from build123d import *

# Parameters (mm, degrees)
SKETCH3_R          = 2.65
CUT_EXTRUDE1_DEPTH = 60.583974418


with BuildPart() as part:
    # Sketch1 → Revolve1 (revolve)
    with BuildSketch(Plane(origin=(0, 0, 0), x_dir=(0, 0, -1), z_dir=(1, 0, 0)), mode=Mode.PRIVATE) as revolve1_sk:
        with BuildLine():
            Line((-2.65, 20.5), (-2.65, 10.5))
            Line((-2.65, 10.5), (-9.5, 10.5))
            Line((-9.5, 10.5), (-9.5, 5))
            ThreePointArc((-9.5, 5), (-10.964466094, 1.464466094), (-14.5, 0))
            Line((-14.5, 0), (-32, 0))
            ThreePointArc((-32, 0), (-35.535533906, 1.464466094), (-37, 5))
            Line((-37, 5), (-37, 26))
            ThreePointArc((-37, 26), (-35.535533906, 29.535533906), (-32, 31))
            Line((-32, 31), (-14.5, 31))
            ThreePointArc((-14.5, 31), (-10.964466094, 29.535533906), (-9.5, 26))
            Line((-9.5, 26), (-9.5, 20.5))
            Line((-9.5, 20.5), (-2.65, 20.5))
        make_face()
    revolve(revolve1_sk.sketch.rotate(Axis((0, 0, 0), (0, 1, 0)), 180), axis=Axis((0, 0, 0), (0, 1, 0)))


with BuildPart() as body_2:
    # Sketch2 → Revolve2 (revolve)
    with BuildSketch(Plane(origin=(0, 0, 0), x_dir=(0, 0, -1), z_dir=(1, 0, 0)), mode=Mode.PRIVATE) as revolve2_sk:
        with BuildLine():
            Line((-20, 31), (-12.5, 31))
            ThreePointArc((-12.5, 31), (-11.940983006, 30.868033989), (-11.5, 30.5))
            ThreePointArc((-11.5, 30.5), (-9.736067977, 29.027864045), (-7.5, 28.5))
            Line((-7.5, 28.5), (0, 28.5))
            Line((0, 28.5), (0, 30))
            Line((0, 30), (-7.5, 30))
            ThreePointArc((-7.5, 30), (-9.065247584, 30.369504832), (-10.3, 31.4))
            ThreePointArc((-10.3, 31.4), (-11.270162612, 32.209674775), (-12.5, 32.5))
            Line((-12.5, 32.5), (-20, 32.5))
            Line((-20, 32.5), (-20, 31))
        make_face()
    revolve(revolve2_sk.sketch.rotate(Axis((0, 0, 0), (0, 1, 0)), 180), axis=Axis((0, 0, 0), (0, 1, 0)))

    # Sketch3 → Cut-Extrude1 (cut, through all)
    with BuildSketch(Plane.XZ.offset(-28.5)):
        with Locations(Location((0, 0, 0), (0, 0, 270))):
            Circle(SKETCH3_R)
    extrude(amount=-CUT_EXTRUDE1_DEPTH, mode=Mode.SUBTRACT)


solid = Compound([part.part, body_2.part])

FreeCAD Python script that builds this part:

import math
import FreeCAD as App
import Part
import Sketcher
Q = App.Units.Quantity

doc = App.newDocument("Part")
params = doc.addObject("Spreadsheet::Sheet", "Params")
for row, (alias, value) in enumerate([
    ("sketch1_radius", "5 mm"),
    ("sketch1_width", "10 mm"),
    ("sketch1_width2", "21 mm"),
    ("sketch1_height", "17.5 mm"),
    ("sketch1_height2", "6.85 mm"),
    ("revolution_angle", "360 deg"),
    ("sketch2_radius", "5 mm"),
    ("sketch2_radius2", "3.5 mm"),
    ("sketch2_radius3", "1.25 mm"),
    ("sketch2_height", "7.5 mm"),
    ("revolution2_angle", "360 deg"),
    ("sketch3_diameter", "5.3 mm"),
], start=1):
    params.set(f"A{row}", alias)
    params.set(f"B{row}", "=" + value)
    params.setAlias(f"B{row}", alias)

body = doc.addObject("PartDesign::Body", "Body")

sketch1 = doc.addObject("Sketcher::SketchObject", "Sketch")
body.addObject(sketch1)
sketch1.AttachmentSupport = (doc.YZ_Plane, [""])
sketch1.MapMode = "FlatFace"
sketch1.addGeometry(Part.LineSegment(App.Vector(10, 3, 0), App.Vector(20, 3, 0)), False)
sketch1.addGeometry(Part.LineSegment(App.Vector(20, 3, 0), App.Vector(20, 10, 0)), False)
sketch1.addGeometry(Part.LineSegment(App.Vector(20, 10, 0), App.Vector(26, 10, 0)), False)
sketch1.addGeometry(Part.ArcOfCircle(Part.Circle(App.Vector(26, 14, 0), App.Vector(0, 0, 1), 5), math.radians(-90), math.radians(0)), False)
sketch1.addGeometry(Part.LineSegment(App.Vector(31, 14, 0), App.Vector(31, 32, 0)), False)
sketch1.addGeometry(Part.ArcOfCircle(Part.Circle(App.Vector(26, 32, 0), App.Vector(0, 0, 1), 5), math.radians(0), math.radians(90)), False)
sketch1.addGeometry(Part.LineSegment(App.Vector(26, 37, 0), App.Vector(5, 37, 0)), False)
sketch1.addGeometry(Part.ArcOfCircle(Part.Circle(App.Vector(5, 32, 0), App.Vector(0, 0, 1), 5), math.radians(90), math.radians(180)), False)
sketch1.addGeometry(Part.LineSegment(App.Vector(0, 32, 0), App.Vector(0, 14, 0)), False)
sketch1.addGeometry(Part.ArcOfCircle(Part.Circle(App.Vector(5, 14, 0), App.Vector(0, 0, 1), 5), math.radians(180), math.radians(270)), False)
sketch1.addGeometry(Part.LineSegment(App.Vector(5, 10, 0), App.Vector(10, 10, 0)), False)
sketch1.addGeometry(Part.LineSegment(App.Vector(10, 10, 0), App.Vector(10, 3, 0)), False)
sketch1.addConstraint(Sketcher.Constraint("Coincident", 0, 2, 1, 1))
sketch1.addConstraint(Sketcher.Constraint("Coincident", 1, 2, 2, 1))
sketch1.addConstraint(Sketcher.Constraint("Tangent", 2, 2, 3, 1))
sketch1.addConstraint(Sketcher.Constraint("Tangent", 3, 2, 4, 1))
sketch1.addConstraint(Sketcher.Constraint("Tangent", 4, 2, 5, 1))
sketch1.addConstraint(Sketcher.Constraint("Tangent", 5, 2, 6, 1))
sketch1.addConstraint(Sketcher.Constraint("Tangent", 6, 2, 7, 1))
sketch1.addConstraint(Sketcher.Constraint("Tangent", 7, 2, 8, 1))
sketch1.addConstraint(Sketcher.Constraint("Tangent", 8, 2, 9, 1))
sketch1.addConstraint(Sketcher.Constraint("Tangent", 9, 2, 10, 1))
sketch1.addConstraint(Sketcher.Constraint("Coincident", 10, 2, 11, 1))
sketch1.addConstraint(Sketcher.Constraint("Coincident", 11, 2, 0, 1))
sketch1.addConstraint(Sketcher.Constraint("Horizontal", 0))
sketch1.addConstraint(Sketcher.Constraint("Vertical", 1))
sketch1.addConstraint(Sketcher.Constraint("Horizontal", 2))
sketch1.addConstraint(Sketcher.Constraint("Vertical", 4))
sketch1.addConstraint(Sketcher.Constraint("Horizontal", 6))
sketch1.addConstraint(Sketcher.Constraint("Vertical", 8))
sketch1.addConstraint(Sketcher.Constraint("Horizontal", 10))
sketch1.addConstraint(Sketcher.Constraint("Vertical", 11))
sketch1.addConstraint(Sketcher.Constraint("Equal", 3, 5))
sketch1.addConstraint(Sketcher.Constraint("Equal", 5, 7))
sketch1.addConstraint(Sketcher.Constraint("Equal", 7, 9))
sketch1.addConstraint(Sketcher.Constraint("PointOnObject", 7, 2, -2))
sketch1.addConstraint(Sketcher.Constraint("Horizontal", 3, 3, 9, 3))
sketch1.addConstraint(Sketcher.Constraint("Equal", 2, 10))
sketch1.addConstraint(Sketcher.Constraint("Radius", 3, Q("5 mm")))
sketch1.addConstraint(Sketcher.Constraint("DistanceX", 0, 1, 0, 2, Q("10 mm")))
sketch1.addConstraint(Sketcher.Constraint("DistanceX", 6, 2, 6, 1, Q("21 mm")))
sketch1.addConstraint(Sketcher.Constraint("DistanceY", 4, 1, 4, 2, Q("17.5 mm")))
sketch1.addConstraint(Sketcher.Constraint("DistanceY", -1, 1, 5, 3, Q("32 mm")))
sketch1.addConstraint(Sketcher.Constraint("DistanceY", 1, 1, 1, 2, Q("6.85 mm")))
sketch1.setExpression("Constraints[26]", "Params.sketch1_radius")
sketch1.setExpression("Constraints[27]", "Params.sketch1_width")
sketch1.setExpression("Constraints[28]", "Params.sketch1_width2")
sketch1.setExpression("Constraints[29]", "Params.sketch1_height")
sketch1.setExpression("Constraints[31]", "Params.sketch1_height2")
revolution = doc.addObject("PartDesign::Revolution", "Revolution")
body.addObject(revolution)
revolution.Profile = sketch1
revolution.ReferenceAxis = (sketch1, ["H_Axis"])
revolution.setExpression("Angle", "Params.revolution_angle")
body2 = doc.addObject("PartDesign::Body", "Body001")

sketch2 = doc.addObject("Sketcher::SketchObject", "Sketch001")
body2.addObject(sketch2)
sketch2.AttachmentSupport = (doc.getObject("YZ_Plane001"), [""])
sketch2.MapMode = "FlatFace"
sketch2.addGeometry(Part.LineSegment(App.Vector(31, 20, 0), App.Vector(31, 12.5, 0)), False)
sketch2.addGeometry(Part.ArcOfCircle(Part.Circle(App.Vector(29.8, 12.5, 0), App.Vector(0, 0, 1), 1.2), math.radians(-53), math.radians(0)), False)
sketch2.addGeometry(Part.ArcOfCircle(Part.Circle(App.Vector(33.5, 7.5, 0), App.Vector(0, 0, 1), 5), math.radians(127), math.radians(180)), False)
sketch2.addGeometry(Part.LineSegment(App.Vector(28.5, 7.5, 0), App.Vector(28.5, 0, 0)), False)
sketch2.addGeometry(Part.LineSegment(App.Vector(28.5, 0, 0), App.Vector(30, 0, 0)), False)
sketch2.addGeometry(Part.LineSegment(App.Vector(30, 0, 0), App.Vector(30, 7.5, 0)), False)
sketch2.addGeometry(Part.ArcOfCircle(Part.Circle(App.Vector(33.5, 7.5, 0), App.Vector(0, 0, 1), 3.5), math.radians(127), math.radians(180)), False)
sketch2.addGeometry(Part.ArcOfCircle(Part.Circle(App.Vector(29.8, 12.5, 0), App.Vector(0, 0, 1), 2.8), math.radians(-53), math.radians(0)), False)
sketch2.addGeometry(Part.LineSegment(App.Vector(32.5, 12.5, 0), App.Vector(32.5, 20, 0)), False)
sketch2.addGeometry(Part.LineSegment(App.Vector(32.5, 20, 0), App.Vector(31, 20, 0)), False)
sketch2.addConstraint(Sketcher.Constraint("Tangent", 0, 2, 1, 2))
sketch2.addConstraint(Sketcher.Constraint("Tangent", 1, 1, 2, 1))
sketch2.addConstraint(Sketcher.Constraint("Tangent", 2, 2, 3, 1))
sketch2.addConstraint(Sketcher.Constraint("Coincident", 3, 2, 4, 1))
sketch2.addConstraint(Sketcher.Constraint("Coincident", 4, 2, 5, 1))
sketch2.addConstraint(Sketcher.Constraint("Tangent", 5, 2, 6, 2))
sketch2.addConstraint(Sketcher.Constraint("Tangent", 6, 1, 7, 1))
sketch2.addConstraint(Sketcher.Constraint("Tangent", 7, 2, 8, 1))
sketch2.addConstraint(Sketcher.Constraint("Coincident", 8, 2, 9, 1))
sketch2.addConstraint(Sketcher.Constraint("Coincident", 9, 2, 0, 1))
sketch2.addConstraint(Sketcher.Constraint("Vertical", 0))
sketch2.addConstraint(Sketcher.Constraint("Vertical", 3))
sketch2.addConstraint(Sketcher.Constraint("Horizontal", 4))
sketch2.addConstraint(Sketcher.Constraint("Vertical", 5))
sketch2.addConstraint(Sketcher.Constraint("Vertical", 8))
sketch2.addConstraint(Sketcher.Constraint("Horizontal", 9))
sketch2.addConstraint(Sketcher.Constraint("Coincident", 6, 3, 2, 3))
sketch2.addConstraint(Sketcher.Constraint("Coincident", 7, 3, 1, 3))
sketch2.addConstraint(Sketcher.Constraint("PointOnObject", 3, 2, -1))
sketch2.addConstraint(Sketcher.Constraint("Equal", 0, 3))
sketch2.addConstraint(Sketcher.Constraint("Radius", 2, Q("5 mm")))
sketch2.addConstraint(Sketcher.Constraint("Radius", 6, Q("3.5 mm")))
sketch2.addConstraint(Sketcher.Constraint("Radius", 1, Q("1.25 mm")))
sketch2.addConstraint(Sketcher.Constraint("DistanceY", 0, 2, 0, 1, Q("7.5 mm")))
sketch2.addConstraint(Sketcher.Constraint("DistanceX", -1, 1, 0, 2, Q("31 mm")))
sketch2.addConstraint(Sketcher.Constraint("DistanceX", -1, 1, 4, 2, Q("30 mm")))
sketch2.setExpression("Constraints[20]", "Params.sketch2_radius")
sketch2.setExpression("Constraints[21]", "Params.sketch2_radius2")
sketch2.setExpression("Constraints[22]", "Params.sketch2_radius3")
sketch2.setExpression("Constraints[23]", "Params.sketch2_height")
revolution2 = doc.addObject("PartDesign::Revolution", "Revolution001")
body2.addObject(revolution2)
revolution2.Profile = sketch2
revolution2.ReferenceAxis = (sketch2, ["H_Axis"])
revolution2.setExpression("Angle", "Params.revolution2_angle")

sketch3 = doc.addObject("Sketcher::SketchObject", "Sketch002")
body2.addObject(sketch3)
sketch3.AttachmentSupport = (doc.getObject("XZ_Plane001"), [""])
sketch3.MapMode = "FlatFace"
sketch3.AttachmentOffset = App.Placement(App.Vector(0, 0, -28.5), App.Rotation())
sketch3.addGeometry(Part.Circle(App.Vector(0, 0, 0), App.Vector(0, 0, 1), 2.6), False)
sketch3.addConstraint(Sketcher.Constraint("Coincident", 0, 3, -1, 1))
sketch3.addConstraint(Sketcher.Constraint("Diameter", 0, Q("5.3 mm")))
sketch3.setExpression("Constraints[1]", "Params.sketch3_diameter")
pocket1 = doc.addObject("PartDesign::Pocket", "Pocket")
body2.addObject(pocket1)
pocket1.Profile = sketch3
pocket1.Type = "ThroughAll"

doc.recompute()
